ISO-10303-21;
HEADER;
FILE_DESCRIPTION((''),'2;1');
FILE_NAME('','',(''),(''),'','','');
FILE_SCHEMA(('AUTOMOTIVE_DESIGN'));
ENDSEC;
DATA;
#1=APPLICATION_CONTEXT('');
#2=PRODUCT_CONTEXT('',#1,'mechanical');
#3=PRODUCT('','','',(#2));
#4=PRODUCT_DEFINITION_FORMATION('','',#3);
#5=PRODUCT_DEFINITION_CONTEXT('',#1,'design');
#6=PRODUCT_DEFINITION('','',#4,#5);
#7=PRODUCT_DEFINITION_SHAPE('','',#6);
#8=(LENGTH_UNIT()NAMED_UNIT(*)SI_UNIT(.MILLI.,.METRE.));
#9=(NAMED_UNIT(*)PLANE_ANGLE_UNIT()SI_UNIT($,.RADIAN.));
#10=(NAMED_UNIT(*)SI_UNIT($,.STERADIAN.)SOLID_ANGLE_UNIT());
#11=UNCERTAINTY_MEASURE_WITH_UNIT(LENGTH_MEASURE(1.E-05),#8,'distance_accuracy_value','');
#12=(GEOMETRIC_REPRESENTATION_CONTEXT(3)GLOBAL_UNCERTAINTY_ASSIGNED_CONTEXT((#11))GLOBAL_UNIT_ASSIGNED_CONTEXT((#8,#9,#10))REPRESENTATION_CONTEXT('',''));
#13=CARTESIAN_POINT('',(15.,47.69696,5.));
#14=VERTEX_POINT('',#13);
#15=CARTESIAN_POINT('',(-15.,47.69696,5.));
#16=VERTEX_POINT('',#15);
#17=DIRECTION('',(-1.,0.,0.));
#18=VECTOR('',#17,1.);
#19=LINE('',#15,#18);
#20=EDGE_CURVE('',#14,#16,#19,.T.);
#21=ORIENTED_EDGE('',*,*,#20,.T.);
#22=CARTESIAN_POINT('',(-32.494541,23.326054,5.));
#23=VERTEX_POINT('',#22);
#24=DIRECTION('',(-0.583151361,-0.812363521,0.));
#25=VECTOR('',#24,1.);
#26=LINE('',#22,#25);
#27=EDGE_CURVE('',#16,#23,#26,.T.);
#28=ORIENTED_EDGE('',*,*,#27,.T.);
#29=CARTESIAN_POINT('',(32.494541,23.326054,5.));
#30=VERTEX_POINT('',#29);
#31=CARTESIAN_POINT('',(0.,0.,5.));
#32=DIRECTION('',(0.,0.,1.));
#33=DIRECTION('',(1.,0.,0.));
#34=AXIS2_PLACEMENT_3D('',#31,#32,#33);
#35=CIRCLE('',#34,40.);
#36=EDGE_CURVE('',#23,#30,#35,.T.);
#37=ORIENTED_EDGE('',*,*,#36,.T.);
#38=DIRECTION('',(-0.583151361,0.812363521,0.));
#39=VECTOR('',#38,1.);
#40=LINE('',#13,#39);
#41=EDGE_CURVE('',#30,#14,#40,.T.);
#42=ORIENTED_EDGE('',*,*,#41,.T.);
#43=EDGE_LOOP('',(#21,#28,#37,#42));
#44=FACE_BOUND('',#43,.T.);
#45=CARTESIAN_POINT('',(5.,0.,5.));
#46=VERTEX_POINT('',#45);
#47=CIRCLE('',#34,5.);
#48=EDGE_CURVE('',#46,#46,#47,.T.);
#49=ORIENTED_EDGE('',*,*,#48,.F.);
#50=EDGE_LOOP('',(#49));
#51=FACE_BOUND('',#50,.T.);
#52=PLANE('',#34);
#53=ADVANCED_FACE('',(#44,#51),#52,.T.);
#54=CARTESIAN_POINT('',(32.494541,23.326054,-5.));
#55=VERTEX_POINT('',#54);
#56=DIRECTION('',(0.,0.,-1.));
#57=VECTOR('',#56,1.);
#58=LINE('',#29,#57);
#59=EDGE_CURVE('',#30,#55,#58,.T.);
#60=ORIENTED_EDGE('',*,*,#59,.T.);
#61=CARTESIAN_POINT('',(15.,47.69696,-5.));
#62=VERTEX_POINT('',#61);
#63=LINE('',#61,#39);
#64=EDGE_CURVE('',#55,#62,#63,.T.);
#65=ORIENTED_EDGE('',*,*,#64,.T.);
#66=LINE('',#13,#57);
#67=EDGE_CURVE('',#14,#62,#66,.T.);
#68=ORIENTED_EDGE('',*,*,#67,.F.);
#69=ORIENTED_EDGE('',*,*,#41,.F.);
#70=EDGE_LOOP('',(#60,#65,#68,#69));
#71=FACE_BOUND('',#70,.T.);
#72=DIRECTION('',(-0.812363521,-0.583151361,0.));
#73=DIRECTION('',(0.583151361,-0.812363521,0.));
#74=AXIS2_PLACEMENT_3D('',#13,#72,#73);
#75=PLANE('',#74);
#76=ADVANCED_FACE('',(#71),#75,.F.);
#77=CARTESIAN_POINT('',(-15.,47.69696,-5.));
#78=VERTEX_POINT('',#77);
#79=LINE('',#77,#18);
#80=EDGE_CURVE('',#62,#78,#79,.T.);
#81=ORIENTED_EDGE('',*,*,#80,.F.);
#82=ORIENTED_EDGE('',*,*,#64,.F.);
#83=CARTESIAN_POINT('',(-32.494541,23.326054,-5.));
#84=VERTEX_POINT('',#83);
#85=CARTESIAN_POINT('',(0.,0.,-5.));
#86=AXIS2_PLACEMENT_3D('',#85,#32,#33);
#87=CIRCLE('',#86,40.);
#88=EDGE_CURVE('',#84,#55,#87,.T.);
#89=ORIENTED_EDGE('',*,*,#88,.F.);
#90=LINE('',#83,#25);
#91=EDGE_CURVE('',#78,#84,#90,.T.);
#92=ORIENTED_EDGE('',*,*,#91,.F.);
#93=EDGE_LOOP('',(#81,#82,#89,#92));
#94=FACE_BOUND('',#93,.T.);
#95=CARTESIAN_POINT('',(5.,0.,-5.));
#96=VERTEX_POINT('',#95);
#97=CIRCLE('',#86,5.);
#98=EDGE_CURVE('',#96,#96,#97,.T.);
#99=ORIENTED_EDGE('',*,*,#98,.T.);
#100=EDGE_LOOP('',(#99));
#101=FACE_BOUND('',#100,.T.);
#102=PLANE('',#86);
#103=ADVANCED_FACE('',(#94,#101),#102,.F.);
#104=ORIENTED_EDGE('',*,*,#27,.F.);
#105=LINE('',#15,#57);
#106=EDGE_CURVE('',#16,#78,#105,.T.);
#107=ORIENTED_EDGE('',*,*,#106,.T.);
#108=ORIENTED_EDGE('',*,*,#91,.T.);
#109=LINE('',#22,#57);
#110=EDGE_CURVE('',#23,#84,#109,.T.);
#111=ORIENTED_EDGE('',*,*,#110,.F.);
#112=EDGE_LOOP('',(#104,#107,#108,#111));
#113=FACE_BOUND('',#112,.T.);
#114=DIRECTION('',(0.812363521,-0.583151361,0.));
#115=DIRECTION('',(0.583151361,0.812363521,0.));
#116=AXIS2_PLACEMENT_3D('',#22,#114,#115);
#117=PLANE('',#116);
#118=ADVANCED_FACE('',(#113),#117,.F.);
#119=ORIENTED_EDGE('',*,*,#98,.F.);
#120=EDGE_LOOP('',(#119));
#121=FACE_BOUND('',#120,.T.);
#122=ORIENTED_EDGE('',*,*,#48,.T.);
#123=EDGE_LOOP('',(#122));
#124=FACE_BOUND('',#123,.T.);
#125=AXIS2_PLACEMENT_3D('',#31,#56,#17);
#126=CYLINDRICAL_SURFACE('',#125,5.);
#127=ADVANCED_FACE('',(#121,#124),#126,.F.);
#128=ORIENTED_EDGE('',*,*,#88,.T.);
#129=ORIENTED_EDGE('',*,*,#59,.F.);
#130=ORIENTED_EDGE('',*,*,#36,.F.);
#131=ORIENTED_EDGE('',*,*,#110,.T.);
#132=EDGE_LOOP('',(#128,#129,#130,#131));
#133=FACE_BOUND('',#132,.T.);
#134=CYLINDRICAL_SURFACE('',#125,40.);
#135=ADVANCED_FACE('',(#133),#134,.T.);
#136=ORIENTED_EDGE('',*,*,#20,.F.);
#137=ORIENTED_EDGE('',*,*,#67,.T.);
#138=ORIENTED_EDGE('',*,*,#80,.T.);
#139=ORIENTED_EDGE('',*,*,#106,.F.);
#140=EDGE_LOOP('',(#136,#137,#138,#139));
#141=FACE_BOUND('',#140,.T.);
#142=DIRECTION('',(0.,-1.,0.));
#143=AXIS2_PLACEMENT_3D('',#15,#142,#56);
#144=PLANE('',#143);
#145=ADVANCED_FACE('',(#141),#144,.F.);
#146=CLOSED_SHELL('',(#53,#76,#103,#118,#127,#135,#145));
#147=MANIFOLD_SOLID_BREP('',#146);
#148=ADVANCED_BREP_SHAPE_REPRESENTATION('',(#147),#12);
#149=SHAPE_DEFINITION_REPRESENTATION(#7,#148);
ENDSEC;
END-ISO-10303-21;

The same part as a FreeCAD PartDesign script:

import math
import FreeCAD as App
import Part
import Sketcher

V = App.Vector
Q = App.Units.Quantity

doc = App.newDocument("Part")
body = doc.addObject("PartDesign::Body", "Body")

# Sketch on XY plane
sketch1 = doc.addObject("Sketcher::SketchObject", "Sketch")
body.addObject(sketch1)
sketch1.AttachmentSupport = (doc.XY_Plane, [""])
sketch1.MapMode = "FlatFace"
sketch1.addGeometry(Part.LineSegment(V(-15, 47.69696, 0), V(-32.494541, 23.326054, 0)), False)
sketch1.addGeometry(Part.ArcOfCircle(Part.Circle(V(0, 0, 0), V(0, 0, 1), 40), math.radians(144.327501), math.radians(395.672499)), False)
sketch1.addGeometry(Part.LineSegment(V(32.494541, 23.326054, 0), V(15, 47.69696, 0)), False)
sketch1.addGeometry(Part.LineSegment(V(15, 47.69696, 0), V(-15, 47.69696, 0)), False)
sketch1.addGeometry(Part.Circle(V(0, 0, 0), V(0, 0, 1), 5), False)
sketch1.addConstraint(Sketcher.Constraint("Tangent", 0, 2, 1, 1))
sketch1.addConstraint(Sketcher.Constraint("Tangent", 1, 2, 2, 1))
sketch1.addConstraint(Sketcher.Constraint("Coincident", 2, 2, 3, 1))
sketch1.addConstraint(Sketcher.Constraint("Coincident", 3, 2, 0, 1))
sketch1.addConstraint(Sketcher.Constraint("Horizontal", 3))
sketch1.addConstraint(Sketcher.Constraint("Coincident", 1, 3, -1, 1))
sketch1.addConstraint(Sketcher.Constraint("Coincident", 4, 3, -1, 1))
sketch1.addConstraint(Sketcher.Constraint("Horizontal", 0, 2, 1, 2))
sketch1.addConstraint(Sketcher.Constraint("Diameter", 4, Q("10 mm")))
sketch1.addConstraint(Sketcher.Constraint("Radius", 1, Q("40 mm")))
sketch1.addConstraint(Sketcher.Constraint("DistanceX", 3, 2, 3, 1, Q("30 mm")))
sketch1.addConstraint(Sketcher.Constraint("Distance", 0, Q("30 mm")))
pad1 = doc.addObject("PartDesign::Pad", "Pad")
body.addObject(pad1)
pad1.Profile = sketch1
pad1.Length = 10
pad1.Midplane = True

doc.recompute()
